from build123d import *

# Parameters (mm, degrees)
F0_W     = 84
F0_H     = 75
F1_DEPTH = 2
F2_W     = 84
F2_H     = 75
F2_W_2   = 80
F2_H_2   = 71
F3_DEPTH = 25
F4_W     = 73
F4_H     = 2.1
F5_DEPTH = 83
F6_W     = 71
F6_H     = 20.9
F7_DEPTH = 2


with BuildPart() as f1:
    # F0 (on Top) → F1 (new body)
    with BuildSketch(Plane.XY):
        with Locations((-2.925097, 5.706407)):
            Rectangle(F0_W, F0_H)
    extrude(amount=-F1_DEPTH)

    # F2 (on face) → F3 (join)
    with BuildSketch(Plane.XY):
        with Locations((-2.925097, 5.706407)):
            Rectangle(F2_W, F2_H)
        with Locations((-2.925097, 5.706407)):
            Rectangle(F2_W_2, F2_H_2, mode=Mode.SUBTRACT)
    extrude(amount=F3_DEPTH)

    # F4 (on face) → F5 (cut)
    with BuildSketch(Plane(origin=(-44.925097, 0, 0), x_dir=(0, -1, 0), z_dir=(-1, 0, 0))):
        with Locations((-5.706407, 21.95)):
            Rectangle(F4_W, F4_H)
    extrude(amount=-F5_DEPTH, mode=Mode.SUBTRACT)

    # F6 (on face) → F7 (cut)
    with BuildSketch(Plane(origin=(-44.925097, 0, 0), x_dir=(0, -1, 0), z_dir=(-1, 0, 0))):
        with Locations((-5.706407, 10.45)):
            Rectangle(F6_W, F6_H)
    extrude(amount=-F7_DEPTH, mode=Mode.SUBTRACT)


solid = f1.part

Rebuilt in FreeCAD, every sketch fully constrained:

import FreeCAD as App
import Part
import Sketcher
from FreeCAD import Vector

doc = App.newDocument("Part")
body = doc.addObject("PartDesign::Body", "Body")

sketch1 = body.newObject("Sketcher::SketchObject", "Sketch")
sketch1.AttachmentSupport = (doc.getObject("XY_Plane"), [""])
sketch1.MapMode = "FlatFace"
sketch1.addGeometry(Part.LineSegment(Vector(-44.925097, 43.206407, 0), Vector(-44.925097, -31.793593, 0)), False)
sketch1.addGeometry(Part.LineSegment(Vector(-44.925097, -31.793593, 0), Vector(39.074903, -31.793593, 0)), False)
sketch1.addGeometry(Part.LineSegment(Vector(39.074903, -31.793593, 0), Vector(39.074903, 43.206407, 0)), False)
sketch1.addGeometry(Part.LineSegment(Vector(39.074903, 43.206407, 0), Vector(-44.925097, 43.206407, 0)), False)
sketch1.addConstraint(Sketcher.Constraint("Coincident", 0, 2, 1, 1))
sketch1.addConstraint(Sketcher.Constraint("Coincident", 1, 2, 2, 1))
sketch1.addConstraint(Sketcher.Constraint("Coincident", 2, 2, 3, 1))
sketch1.addConstraint(Sketcher.Constraint("Coincident", 3, 2, 0, 1))
sketch1.addConstraint(Sketcher.Constraint("Vertical", 0))
sketch1.addConstraint(Sketcher.Constraint("Horizontal", 1))
sketch1.addConstraint(Sketcher.Constraint("Vertical", 2))
sketch1.addConstraint(Sketcher.Constraint("Horizontal", 3))
sketch1.addConstraint(Sketcher.Constraint("DistanceX", 1, 1, 1, 2, 84.0))
sketch1.addConstraint(Sketcher.Constraint("DistanceY", 0, 2, 0, 1, 75.0))
sketch1.addConstraint(Sketcher.Constraint("DistanceX", 0, 2, -1, 1, 44.925097))
sketch1.addConstraint(Sketcher.Constraint("DistanceY", 0, 2, -1, 1, 31.793593))
pad1 = body.newObject("PartDesign::Pad", "Pad")
pad1.Profile = sketch1
pad1.Length = 2
pad1.Reversed = True

sketch2 = body.newObject("Sketcher::SketchObject", "Sketch001")
sketch2.AttachmentSupport = (doc.getObject("XY_Plane"), [""])
sketch2.MapMode = "FlatFace"
sketch2.addGeometry(Part.LineSegment(Vector(-44.925097, 43.206407, 0), Vector(-44.925097, -31.793593, 0)), False)
sketch2.addGeometry(Part.LineSegment(Vector(-44.925097, -31.793593, 0), Vector(39.074903, -31.793593, 0)), False)
sketch2.addGeometry(Part.LineSegment(Vector(39.074903, -31.793593, 0), Vector(39.074903, 43.206407, 0)), False)
sketch2.addGeometry(Part.LineSegment(Vector(39.074903, 43.206407, 0), Vector(-44.925097, 43.206407, 0)), False)
sketch2.addGeometry(Part.LineSegment(Vector(37.074903, -29.793593, 0), Vector(-42.925097, -29.793593, 0)), False)
sketch2.addGeometry(Part.LineSegment(Vector(-42.925097, -29.793593, 0), Vector(-42.925097, 41.206407, 0)), False)
sketch2.addGeometry(Part.LineSegment(Vector(-42.925097, 41.206407, 0), Vector(37.074903, 41.206407, 0)), False)
sketch2.addGeometry(Part.LineSegment(Vector(37.074903, 41.206407, 0), Vector(37.074903, -29.793593, 0)), False)
sketch2.addConstraint(Sketcher.Constraint("Coincident", 0, 2, 1, 1))
sketch2.addConstraint(Sketcher.Constraint("Coincident", 1, 2, 2, 1))
sketch2.addConstraint(Sketcher.Constraint("Coincident", 2, 2, 3, 1))
sketch2.addConstraint(Sketcher.Constraint("Coincident", 3, 2, 0, 1))
sketch2.addConstraint(Sketcher.Constraint("Coincident", 4, 2, 5, 1))
sketch2.addConstraint(Sketcher.Constraint("Coincident", 5, 2, 6, 1))
sketch2.addConstraint(Sketcher.Constraint("Coincident", 6, 2, 7, 1))
sketch2.addConstraint(Sketcher.Constraint("Coincident", 7, 2, 4, 1))
sketch2.addConstraint(Sketcher.Constraint("Vertical", 0))
sketch2.addConstraint(Sketcher.Constraint("Horizontal", 1))
sketch2.addConstraint(Sketcher.Constraint("Vertical", 2))
sketch2.addConstraint(Sketcher.Constraint("Horizontal", 3))
sketch2.addConstraint(Sketcher.Constraint("Horizontal", 4))
sketch2.addConstraint(Sketcher.Constraint("Vertical", 5))
sketch2.addConstraint(Sketcher.Constraint("Horizontal", 6))
sketch2.addConstraint(Sketcher.Constraint("Vertical", 7))
sketch2.addConstraint(Sketcher.Constraint("DistanceX", 1, 1, 1, 2, 84.0))
sketch2.addConstraint(Sketcher.Constraint("DistanceX", 4, 2, 4, 1, 80.0))
sketch2.addConstraint(Sketcher.Constraint("DistanceY", 0, 2, 0, 1, 75.0))
sketch2.addConstraint(Sketcher.Constraint("DistanceY", 5, 1, 5, 2, 71.0))
sketch2.addConstraint(Sketcher.Constraint("DistanceX", 0, 2, 4, 2, 2.0))
sketch2.addConstraint(Sketcher.Constraint("DistanceY", 0, 2, 4, 2, 2.0))
sketch2.addConstraint(Sketcher.Constraint("DistanceX", 0, 2, -1, 1, 44.925097))
sketch2.addConstraint(Sketcher.Constraint("DistanceY", 0, 2, -1, 1, 31.793593))
pad2 = body.newObject("PartDesign::Pad", "Pad001")
pad2.Profile = sketch2
pad2.Length = 25

sketch3 = body.newObject("Sketcher::SketchObject", "Sketch002")
sketch3.AttachmentSupport = (doc.getObject("YZ_Plane"), [""])
sketch3.MapMode = "FlatFace"
sketch3.AttachmentOffset = App.Placement(Vector(0, 0, -44.925097), App.Rotation())
sketch3.addGeometry(Part.LineSegment(Vector(42.206407, 23, 0), Vector(42.206407, 20.9, 0)), False)
sketch3.addGeometry(Part.LineSegment(Vector(42.206407, 20.9, 0), Vector(-30.793593, 20.9, 0)), False)
sketch3.addGeometry(Part.LineSegment(Vector(-30.793593, 20.9, 0), Vector(-30.793593, 23, 0)), False)
sketch3.addGeometry(Part.LineSegment(Vector(-30.793593, 23, 0), Vector(42.206407, 23, 0)), False)
sketch3.addConstraint(Sketcher.Constraint("Coincident", 0, 2, 1, 1))
sketch3.addConstraint(Sketcher.Constraint("Coincident", 1, 2, 2, 1))
sketch3.addConstraint(Sketcher.Constraint("Coincident", 2, 2, 3, 1))
sketch3.addConstraint(Sketcher.Constraint("Coincident", 3, 2, 0, 1))
sketch3.addConstraint(Sketcher.Constraint("Vertical", 0))
sketch3.addConstraint(Sketcher.Constraint("Horizontal", 1))
sketch3.addConstraint(Sketcher.Constraint("Vertical", 2))
sketch3.addConstraint(Sketcher.Constraint("Horizontal", 3))
sketch3.addConstraint(Sketcher.Constraint("DistanceX", 1, 2, 1, 1, 73.0))
sketch3.addConstraint(Sketcher.Constraint("DistanceY", 0, 2, 0, 1, 2.1))
sketch3.addConstraint(Sketcher.Constraint("DistanceY", -1, 1, 2, 2, 23.0))
sketch3.addConstraint(Sketcher.Constraint("DistanceX", -1, 1, 0, 2, 42.206407))
pocket1 = body.newObject("PartDesign::Pocket", "Pocket")
pocket1.Profile = sketch3
pocket1.Length = 83
pocket1.Reversed = True

sketch4 = body.newObject("Sketcher::SketchObject", "Sketch003")
sketch4.AttachmentSupport = (doc.getObject("YZ_Plane"), [""])
sketch4.MapMode = "FlatFace"
sketch4.AttachmentOffset = App.Placement(Vector(0, 0, -44.925097), App.Rotation())
sketch4.addGeometry(Part.LineSegment(Vector(41.206407, 20.9, 0), Vector(41.206407, 0, 0)), False)
sketch4.addGeometry(Part.LineSegment(Vector(41.206407, 0, 0), Vector(-29.793593, 0, 0)), False)
sketch4.addGeometry(Part.LineSegment(Vector(-29.793593, 0, 0), Vector(-29.793593, 20.9, 0)), False)
sketch4.addGeometry(Part.LineSegment(Vector(-29.793593, 20.9, 0), Vector(41.206407, 20.9, 0)), False)
sketch4.addConstraint(Sketcher.Constraint("Coincident", 0, 2, 1, 1))
sketch4.addConstraint(Sketcher.Constraint("Coincident", 1, 2, 2, 1))
sketch4.addConstraint(Sketcher.Constraint("Coincident", 2, 2, 3, 1))
sketch4.addConstraint(Sketcher.Constraint("Coincident", 3, 2, 0, 1))
sketch4.addConstraint(Sketcher.Constraint("Vertical", 0))
sketch4.addConstraint(Sketcher.Constraint("Horizontal", 1))
sketch4.addConstraint(Sketcher.Constraint("Vertical", 2))
sketch4.addConstraint(Sketcher.Constraint("Horizontal", 3))
sketch4.addConstraint(Sketcher.Constraint("PointOnObject", 0, 2, -1))
sketch4.addConstraint(Sketcher.Constraint("DistanceX", 1, 2, 1, 1, 71.0))
sketch4.addConstraint(Sketcher.Constraint("DistanceY", 0, 2, 0, 1, 20.9))
sketch4.addConstraint(Sketcher.Constraint("DistanceX", -1, 1, 0, 2, 41.206407))
pocket2 = body.newObject("PartDesign::Pocket", "Pocket001")
pocket2.Profile = sketch4
pocket2.Length = 2
pocket2.Reversed = True

doc.recompute()
